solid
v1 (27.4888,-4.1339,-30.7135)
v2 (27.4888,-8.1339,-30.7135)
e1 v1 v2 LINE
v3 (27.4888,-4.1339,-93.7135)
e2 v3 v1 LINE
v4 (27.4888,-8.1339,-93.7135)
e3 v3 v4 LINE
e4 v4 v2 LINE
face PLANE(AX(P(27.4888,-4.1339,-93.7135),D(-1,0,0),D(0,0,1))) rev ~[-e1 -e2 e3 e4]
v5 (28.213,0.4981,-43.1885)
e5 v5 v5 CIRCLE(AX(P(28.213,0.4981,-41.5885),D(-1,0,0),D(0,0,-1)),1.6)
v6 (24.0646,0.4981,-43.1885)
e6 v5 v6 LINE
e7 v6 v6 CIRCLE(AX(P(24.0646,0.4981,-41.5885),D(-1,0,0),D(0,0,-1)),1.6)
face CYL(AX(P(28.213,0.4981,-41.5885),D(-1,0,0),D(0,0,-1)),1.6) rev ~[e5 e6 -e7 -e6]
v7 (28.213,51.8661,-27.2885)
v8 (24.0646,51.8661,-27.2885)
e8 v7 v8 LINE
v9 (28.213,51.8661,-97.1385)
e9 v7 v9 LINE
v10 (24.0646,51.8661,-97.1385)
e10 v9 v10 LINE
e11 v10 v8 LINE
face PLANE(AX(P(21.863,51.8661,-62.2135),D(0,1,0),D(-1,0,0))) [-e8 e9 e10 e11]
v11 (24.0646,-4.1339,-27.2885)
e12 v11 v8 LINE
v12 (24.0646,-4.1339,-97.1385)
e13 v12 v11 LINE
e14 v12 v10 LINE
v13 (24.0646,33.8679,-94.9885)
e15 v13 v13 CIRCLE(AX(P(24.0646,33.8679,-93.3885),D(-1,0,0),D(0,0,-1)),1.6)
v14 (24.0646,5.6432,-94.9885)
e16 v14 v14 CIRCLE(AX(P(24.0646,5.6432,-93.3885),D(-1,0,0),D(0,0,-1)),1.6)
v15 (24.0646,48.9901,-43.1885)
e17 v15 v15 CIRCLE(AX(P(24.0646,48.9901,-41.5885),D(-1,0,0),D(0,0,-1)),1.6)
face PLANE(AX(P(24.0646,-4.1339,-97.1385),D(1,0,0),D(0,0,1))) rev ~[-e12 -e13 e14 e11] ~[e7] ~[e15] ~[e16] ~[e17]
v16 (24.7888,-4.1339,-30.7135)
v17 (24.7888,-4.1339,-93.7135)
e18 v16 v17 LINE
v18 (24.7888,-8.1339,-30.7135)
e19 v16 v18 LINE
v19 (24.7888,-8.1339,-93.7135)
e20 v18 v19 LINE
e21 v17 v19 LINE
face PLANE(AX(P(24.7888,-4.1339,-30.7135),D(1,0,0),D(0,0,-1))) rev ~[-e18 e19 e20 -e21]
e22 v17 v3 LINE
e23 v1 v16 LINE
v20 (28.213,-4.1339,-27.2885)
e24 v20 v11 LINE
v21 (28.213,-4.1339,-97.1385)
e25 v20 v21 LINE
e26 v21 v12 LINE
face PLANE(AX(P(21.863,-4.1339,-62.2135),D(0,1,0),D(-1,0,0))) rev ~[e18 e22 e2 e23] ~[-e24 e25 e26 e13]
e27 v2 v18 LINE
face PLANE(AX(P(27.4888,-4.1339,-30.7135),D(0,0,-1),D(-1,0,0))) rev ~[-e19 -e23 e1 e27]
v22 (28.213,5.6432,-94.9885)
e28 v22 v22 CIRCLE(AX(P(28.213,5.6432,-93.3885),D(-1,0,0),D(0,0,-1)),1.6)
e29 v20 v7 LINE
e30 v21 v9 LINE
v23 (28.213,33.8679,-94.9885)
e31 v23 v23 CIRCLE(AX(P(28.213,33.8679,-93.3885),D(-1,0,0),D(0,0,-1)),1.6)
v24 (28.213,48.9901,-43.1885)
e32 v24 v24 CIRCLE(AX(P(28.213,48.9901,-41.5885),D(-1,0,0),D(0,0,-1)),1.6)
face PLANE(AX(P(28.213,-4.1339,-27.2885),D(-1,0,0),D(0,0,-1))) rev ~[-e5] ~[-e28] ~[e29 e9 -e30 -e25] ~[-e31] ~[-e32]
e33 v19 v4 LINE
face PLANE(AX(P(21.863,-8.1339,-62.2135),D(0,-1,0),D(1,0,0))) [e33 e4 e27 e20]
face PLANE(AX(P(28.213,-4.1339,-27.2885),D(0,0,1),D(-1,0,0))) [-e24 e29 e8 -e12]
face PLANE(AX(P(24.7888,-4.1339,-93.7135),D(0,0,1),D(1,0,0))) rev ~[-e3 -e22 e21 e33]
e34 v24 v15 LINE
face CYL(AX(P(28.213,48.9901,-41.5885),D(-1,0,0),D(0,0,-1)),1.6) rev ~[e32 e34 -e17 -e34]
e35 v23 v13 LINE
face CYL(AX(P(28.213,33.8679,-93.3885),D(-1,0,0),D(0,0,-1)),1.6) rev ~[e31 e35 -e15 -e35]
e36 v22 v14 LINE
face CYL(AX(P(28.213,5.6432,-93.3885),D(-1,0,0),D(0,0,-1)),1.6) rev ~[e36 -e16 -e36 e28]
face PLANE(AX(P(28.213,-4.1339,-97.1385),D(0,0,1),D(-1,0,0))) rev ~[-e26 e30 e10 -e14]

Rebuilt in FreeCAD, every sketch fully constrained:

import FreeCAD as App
import Part
import Sketcher
from FreeCAD import Vector


def add_polygon(sketch, points):
    """Adds a closed chain of lines whose ends are joined by coincident constraints."""
    first, n = sketch.GeometryCount, len(points)
    for a, b in zip(points, points[1:] + points[:1]):
        sketch.addGeometry(Part.LineSegment(App.Vector(*a, 0), App.Vector(*b, 0)), False)
    for i in range(n):
        sketch.addConstraint(Sketcher.Constraint("Coincident", first + i, 2, first + (i + 1) % n, 1))

doc = App.newDocument("Part")
params = doc.addObject("Spreadsheet::Sheet", "Params")
for row, (alias, value) in enumerate([
    ("sketch1_height", "69.85 mm"),
    ("pad1_length", "56 mm"),
    ("sketch2_height", "63 mm"),
    ("sketch2_width", "2.7 mm"),
    ("pad2_length", "4 mm"),
    ("sketch3_diameter", "3.2 mm"),
    ("hole_diameter", "3.2 mm"),
], start=1):
    params.set(f"A{row}", alias)
    params.set(f"B{row}", "=" + value)
    params.setAlias(f"B{row}", alias)

body = doc.addObject("PartDesign::Body", "Body")

# Sketch on XZ plane
sketch1 = body.newObject("Sketcher::SketchObject", "Sketch")
sketch1.AttachmentSupport = (doc.getObject("XZ_Plane"), [""])
sketch1.MapMode = "FlatFace"
sketch1.AttachmentOffset = App.Placement(Vector(0, 0, 4.1339), App.Rotation())
add_polygon(sketch1, [(24.1, -27.3), (28.2, -27.3), (28.2, -97.1), (24.1, -97.1)])  # lines 0-3
sketch1.addConstraint([
    Sketcher.Constraint("Horizontal", 0),
    Sketcher.Constraint("Vertical", 1),
    Sketcher.Constraint("Horizontal", 2),
    Sketcher.Constraint("Vertical", 3),
    Sketcher.Constraint("DistanceY", 1, 2, 1, 1, 69.85),
    Sketcher.Constraint("DistanceX", 0, 1, 0, 2, 4.1484),
    Sketcher.Constraint("DistanceX", -1, 1, 0, 2, 28.213),
    Sketcher.Constraint("DistanceY", 0, 2, -1, 1, 27.2885),
])
sketch1.setExpression("Constraints[8]", "Params.sketch1_height")
pad1 = body.newObject("PartDesign::Pad", "Pad")
pad1.Profile = sketch1
pad1.setExpression("Length", "Params.pad1_length")
pad1.Reversed = True

# Sketch on XZ plane
sketch2 = body.newObject("Sketcher::SketchObject", "Sketch001")
sketch2.AttachmentSupport = (doc.getObject("XZ_Plane"), [""])
sketch2.MapMode = "FlatFace"
sketch2.AttachmentOffset = App.Placement(Vector(0, 0, 4.1339), App.Rotation())
add_polygon(sketch2, [(27.5, -93.7), (27.5, -30.7), (24.8, -30.7), (24.8, -93.7)])  # lines 0-3
sketch2.addConstraint([
    Sketcher.Constraint("Vertical", 0),
    Sketcher.Constraint("Horizontal", 1),
    Sketcher.Constraint("Vertical", 2),
    Sketcher.Constraint("Horizontal", 3),
    Sketcher.Constraint("DistanceY", 0, 1, 0, 2, 63.0),
    Sketcher.Constraint("DistanceX", 1, 2, 1, 1, 2.7),
    Sketcher.Constraint("DistanceX", -1, 1, 0, 2, 27.4888),
    Sketcher.Constraint("DistanceY", 0, 2, -1, 1, 30.7135),
])
sketch2.setExpression("Constraints[8]", "Params.sketch2_height")
sketch2.setExpression("Constraints[9]", "Params.sketch2_width")
pad2 = body.newObject("PartDesign::Pad", "Pad001")
pad2.Profile = sketch2
pad2.setExpression("Length", "Params.pad2_length")

# Sketch on YZ plane
sketch3 = body.newObject("Sketcher::SketchObject", "Sketch002")
sketch3.AttachmentSupport = (doc.getObject("YZ_Plane"), [""])
sketch3.MapMode = "FlatFace"
sketch3.AttachmentOffset = App.Placement(Vector(0, 0, 28.213), App.Rotation())
sketch3.addGeometry([
    Part.Circle(Vector(49, -41.6, 0), Vector(0, 0, 1), 1.6),
    Part.Circle(Vector(0.5, -41.6, 0), Vector(0, 0, 1), 1.6),
    Part.Circle(Vector(5.6, -93.4, 0), Vector(0, 0, 1), 1.6),
    Part.Circle(Vector(33.9, -93.4, 0), Vector(0, 0, 1), 1.6),
], False)
sketch3.addConstraint([
    Sketcher.Constraint("Equal", 0, 1),
    Sketcher.Constraint("Equal", 1, 2),
    Sketcher.Constraint("Equal", 2, 3),
    Sketcher.Constraint("Horizontal", 0, 3, 1, 3),
    Sketcher.Constraint("Horizontal", 2, 3, 3, 3),
    Sketcher.Constraint("Diameter", 0, 3.2),
    Sketcher.Constraint("DistanceY", 2, 3, 1, 3, 51.8),
    Sketcher.Constraint("DistanceX", -1, 1, 0, 3, 48.99),
    Sketcher.Constraint("DistanceX", -1, 1, 1, 3, 0.498),
    Sketcher.Constraint("DistanceX", -1, 1, 3, 3, 33.868),
    Sketcher.Constraint("DistanceX", 1, 3, 2, 3, 5.145),
    Sketcher.Constraint("DistanceY", 0, 3, -1, 1, 41.5885),
])
sketch3.setExpression("Constraints[5]", "Params.sketch3_diameter")
doc.recompute()
hole = body.newObject("PartDesign::Hole", "Hole")
hole.Profile = sketch3
hole.ThreadType = "None"
hole.setExpression("Diameter", "Params.hole_diameter")
hole.DepthType = "ThroughAll"

doc.recompute()
